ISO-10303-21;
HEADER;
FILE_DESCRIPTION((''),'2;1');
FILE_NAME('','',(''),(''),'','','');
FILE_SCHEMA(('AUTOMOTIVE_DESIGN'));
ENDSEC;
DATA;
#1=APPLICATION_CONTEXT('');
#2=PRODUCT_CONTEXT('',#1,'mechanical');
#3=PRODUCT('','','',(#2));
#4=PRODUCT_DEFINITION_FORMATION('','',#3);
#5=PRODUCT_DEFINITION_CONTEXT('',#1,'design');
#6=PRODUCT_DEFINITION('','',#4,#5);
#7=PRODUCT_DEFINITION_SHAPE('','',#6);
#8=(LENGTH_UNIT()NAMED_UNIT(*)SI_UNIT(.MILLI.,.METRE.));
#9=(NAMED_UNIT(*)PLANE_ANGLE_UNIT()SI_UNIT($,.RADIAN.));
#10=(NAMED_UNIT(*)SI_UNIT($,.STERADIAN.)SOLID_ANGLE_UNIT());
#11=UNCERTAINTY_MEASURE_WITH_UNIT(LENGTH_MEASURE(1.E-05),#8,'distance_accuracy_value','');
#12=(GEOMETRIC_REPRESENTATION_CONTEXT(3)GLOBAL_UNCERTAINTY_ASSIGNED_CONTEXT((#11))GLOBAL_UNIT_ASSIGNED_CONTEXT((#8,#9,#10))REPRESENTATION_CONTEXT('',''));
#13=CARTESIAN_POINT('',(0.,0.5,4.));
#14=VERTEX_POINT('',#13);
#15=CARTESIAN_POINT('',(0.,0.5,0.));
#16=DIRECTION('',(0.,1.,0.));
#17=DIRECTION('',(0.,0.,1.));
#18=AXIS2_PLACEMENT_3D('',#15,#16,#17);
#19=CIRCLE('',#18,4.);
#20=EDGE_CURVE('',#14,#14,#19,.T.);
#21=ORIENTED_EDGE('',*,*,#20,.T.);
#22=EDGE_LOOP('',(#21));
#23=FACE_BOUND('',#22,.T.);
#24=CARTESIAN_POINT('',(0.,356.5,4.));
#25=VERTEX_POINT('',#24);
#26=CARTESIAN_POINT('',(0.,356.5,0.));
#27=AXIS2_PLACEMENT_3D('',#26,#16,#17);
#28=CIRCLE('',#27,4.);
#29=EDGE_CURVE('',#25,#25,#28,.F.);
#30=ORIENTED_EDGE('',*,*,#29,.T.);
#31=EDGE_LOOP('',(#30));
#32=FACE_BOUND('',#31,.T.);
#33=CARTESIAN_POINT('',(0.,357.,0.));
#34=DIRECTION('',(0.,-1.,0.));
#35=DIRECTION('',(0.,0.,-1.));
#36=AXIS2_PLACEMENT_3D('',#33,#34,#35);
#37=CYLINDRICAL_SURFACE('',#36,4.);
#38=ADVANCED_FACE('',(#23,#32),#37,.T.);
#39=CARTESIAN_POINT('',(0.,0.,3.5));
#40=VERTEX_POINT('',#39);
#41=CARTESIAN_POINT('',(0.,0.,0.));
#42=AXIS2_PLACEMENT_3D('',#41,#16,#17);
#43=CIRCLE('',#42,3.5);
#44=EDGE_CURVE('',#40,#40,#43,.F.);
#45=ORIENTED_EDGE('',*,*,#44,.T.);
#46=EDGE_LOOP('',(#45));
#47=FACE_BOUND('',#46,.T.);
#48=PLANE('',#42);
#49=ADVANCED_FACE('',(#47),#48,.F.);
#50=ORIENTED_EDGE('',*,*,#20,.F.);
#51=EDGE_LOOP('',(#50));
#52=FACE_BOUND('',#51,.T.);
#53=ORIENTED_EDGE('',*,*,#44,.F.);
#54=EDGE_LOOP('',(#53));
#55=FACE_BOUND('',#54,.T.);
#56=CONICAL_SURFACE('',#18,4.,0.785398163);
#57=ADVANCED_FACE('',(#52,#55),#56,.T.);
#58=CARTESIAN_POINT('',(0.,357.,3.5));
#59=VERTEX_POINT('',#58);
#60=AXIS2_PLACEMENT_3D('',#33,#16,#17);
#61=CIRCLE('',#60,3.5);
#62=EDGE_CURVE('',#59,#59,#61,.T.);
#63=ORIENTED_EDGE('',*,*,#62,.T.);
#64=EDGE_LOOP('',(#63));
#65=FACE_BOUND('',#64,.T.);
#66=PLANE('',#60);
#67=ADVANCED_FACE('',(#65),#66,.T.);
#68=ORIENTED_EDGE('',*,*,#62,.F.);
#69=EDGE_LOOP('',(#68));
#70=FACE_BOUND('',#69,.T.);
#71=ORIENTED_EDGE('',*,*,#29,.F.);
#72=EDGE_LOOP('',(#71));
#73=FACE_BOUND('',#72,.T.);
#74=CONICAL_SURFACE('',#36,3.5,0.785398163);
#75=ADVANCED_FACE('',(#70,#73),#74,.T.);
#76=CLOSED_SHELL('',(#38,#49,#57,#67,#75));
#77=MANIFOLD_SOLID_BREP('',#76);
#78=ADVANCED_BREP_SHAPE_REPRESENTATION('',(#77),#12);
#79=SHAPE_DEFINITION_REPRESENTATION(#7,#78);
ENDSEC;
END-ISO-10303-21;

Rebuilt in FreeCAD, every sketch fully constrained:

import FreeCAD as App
import Part
import Sketcher
Q = App.Units.Quantity


def edges_at(feature, points):
    """Names of the edges that pass closest to the given points."""
    edges = feature.Shape.Edges
    near = lambda p: min(range(len(edges)), key=lambda i: edges[i].distToShape(Part.Vertex(*p))[0])
    return sorted({f"Edge{near(p) + 1}" for p in points})

doc = App.newDocument("Part")
body = doc.addObject("PartDesign::Body", "Body")

sketch1 = body.newObject("Sketcher::SketchObject", "Sketch")
sketch1.AttachmentSupport = (doc.getObject("XZ_Plane"), [""])
sketch1.MapMode = "FlatFace"
sketch1.addGeometry(Part.Circle(App.Vector(0, 0, 0), App.Vector(0, 0, 1), 4), False)
sketch1.addConstraint([
    Sketcher.Constraint("Coincident", 0, 3, -1, 1),
    Sketcher.Constraint("Diameter", 0, Q("8 mm")),
])
pad1 = body.newObject("PartDesign::Pad", "Pad")
pad1.Profile = sketch1
pad1.Length = 357
pad1.Reversed = True
doc.recompute()

chamfer = body.newObject("PartDesign::Chamfer", "Chamfer")
chamfer.Base = (pad1, edges_at(pad1, [(0, 0, -4), (0, 357, -4)]))
chamfer.Size = 0.5

doc.recompute()
